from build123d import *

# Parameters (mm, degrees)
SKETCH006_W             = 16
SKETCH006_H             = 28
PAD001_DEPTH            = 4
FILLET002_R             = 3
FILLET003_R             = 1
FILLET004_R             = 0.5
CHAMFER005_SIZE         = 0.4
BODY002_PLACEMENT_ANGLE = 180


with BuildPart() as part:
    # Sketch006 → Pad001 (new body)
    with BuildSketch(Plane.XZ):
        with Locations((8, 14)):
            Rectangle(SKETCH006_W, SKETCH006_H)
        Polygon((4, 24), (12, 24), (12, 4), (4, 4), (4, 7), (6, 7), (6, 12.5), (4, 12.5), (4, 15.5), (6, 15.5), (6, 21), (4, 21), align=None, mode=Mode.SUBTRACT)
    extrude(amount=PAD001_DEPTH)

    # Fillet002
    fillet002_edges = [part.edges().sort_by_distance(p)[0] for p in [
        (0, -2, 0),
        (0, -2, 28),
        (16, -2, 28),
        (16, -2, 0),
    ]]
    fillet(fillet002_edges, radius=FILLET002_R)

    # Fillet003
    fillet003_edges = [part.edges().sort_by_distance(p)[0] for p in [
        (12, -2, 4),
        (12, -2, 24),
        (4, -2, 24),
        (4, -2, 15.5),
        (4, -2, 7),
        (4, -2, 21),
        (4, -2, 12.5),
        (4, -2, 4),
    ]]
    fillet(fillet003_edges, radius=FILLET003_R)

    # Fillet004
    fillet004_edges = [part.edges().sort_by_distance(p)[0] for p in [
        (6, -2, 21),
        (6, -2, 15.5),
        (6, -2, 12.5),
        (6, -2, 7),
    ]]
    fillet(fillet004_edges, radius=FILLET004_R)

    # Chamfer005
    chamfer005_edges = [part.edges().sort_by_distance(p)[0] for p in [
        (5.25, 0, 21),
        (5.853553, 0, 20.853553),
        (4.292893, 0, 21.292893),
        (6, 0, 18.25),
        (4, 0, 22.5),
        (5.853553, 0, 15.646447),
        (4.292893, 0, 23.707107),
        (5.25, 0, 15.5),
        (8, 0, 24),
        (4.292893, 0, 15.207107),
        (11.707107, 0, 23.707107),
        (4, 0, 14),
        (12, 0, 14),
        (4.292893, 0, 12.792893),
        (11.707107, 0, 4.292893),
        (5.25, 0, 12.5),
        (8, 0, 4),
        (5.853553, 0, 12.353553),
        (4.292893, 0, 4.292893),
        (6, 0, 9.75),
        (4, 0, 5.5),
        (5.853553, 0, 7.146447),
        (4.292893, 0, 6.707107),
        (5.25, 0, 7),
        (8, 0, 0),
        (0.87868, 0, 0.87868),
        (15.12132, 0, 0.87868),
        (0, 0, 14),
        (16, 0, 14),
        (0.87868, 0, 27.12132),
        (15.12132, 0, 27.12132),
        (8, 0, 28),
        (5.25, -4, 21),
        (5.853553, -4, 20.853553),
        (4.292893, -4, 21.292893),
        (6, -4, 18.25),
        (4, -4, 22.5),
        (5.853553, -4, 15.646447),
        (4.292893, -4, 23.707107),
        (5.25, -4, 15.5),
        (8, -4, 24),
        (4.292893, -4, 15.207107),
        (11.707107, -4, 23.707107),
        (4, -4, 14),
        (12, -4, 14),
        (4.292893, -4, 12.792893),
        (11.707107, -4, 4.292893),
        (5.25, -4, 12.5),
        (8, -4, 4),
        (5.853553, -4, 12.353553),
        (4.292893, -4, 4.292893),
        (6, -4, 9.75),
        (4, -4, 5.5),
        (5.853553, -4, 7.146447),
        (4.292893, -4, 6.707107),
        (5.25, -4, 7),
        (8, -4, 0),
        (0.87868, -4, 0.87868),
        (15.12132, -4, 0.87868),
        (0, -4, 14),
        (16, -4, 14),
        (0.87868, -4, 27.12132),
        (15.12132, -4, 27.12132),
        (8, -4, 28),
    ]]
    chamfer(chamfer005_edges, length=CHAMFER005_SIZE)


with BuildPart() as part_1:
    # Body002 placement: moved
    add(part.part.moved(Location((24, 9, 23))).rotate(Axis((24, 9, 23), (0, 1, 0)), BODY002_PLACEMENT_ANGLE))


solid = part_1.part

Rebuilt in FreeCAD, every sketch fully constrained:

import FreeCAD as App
import Part
import Sketcher
Q = App.Units.Quantity


def edges_at(feature, points):
    """Names of the edges that pass closest to the given points."""
    edges = feature.Shape.Edges
    near = lambda p: min(range(len(edges)), key=lambda i: edges[i].distToShape(Part.Vertex(*p))[0])
    return sorted({f"Edge{near(p) + 1}" for p in points})

doc = App.newDocument("Part")
body = doc.addObject("PartDesign::Body", "Body")

# Sketch on XZ plane
sketch1 = body.newObject("Sketcher::SketchObject", "Sketch")
sketch1.AttachmentSupport = (doc.getObject("XZ_Plane"), [""])
sketch1.MapMode = "FlatFace"
sketch1.addGeometry([
    Part.LineSegment(App.Vector(0, 28, 0), App.Vector(0, 0, 0)),  # 0
    Part.LineSegment(App.Vector(0, 0, 0), App.Vector(16, 0, 0)),  # 1
    Part.LineSegment(App.Vector(16, 0, 0), App.Vector(16, 28, 0)),  # 2
    Part.LineSegment(App.Vector(16, 28, 0), App.Vector(0, 28, 0)),  # 3
    Part.LineSegment(App.Vector(4, 21, 0), App.Vector(4, 24, 0)),  # 4
    Part.LineSegment(App.Vector(4, 24, 0), App.Vector(12, 24, 0)),  # 5
    Part.LineSegment(App.Vector(12, 24, 0), App.Vector(12, 4, 0)),  # 6
    Part.LineSegment(App.Vector(12, 4, 0), App.Vector(4, 4, 0)),  # 7
    Part.LineSegment(App.Vector(4, 4, 0), App.Vector(4, 7, 0)),  # 8
    Part.LineSegment(App.Vector(4, 7, 0), App.Vector(6, 7, 0)),  # 9
    Part.LineSegment(App.Vector(6, 7, 0), App.Vector(6, 12.5, 0)),  # 10
    Part.LineSegment(App.Vector(6, 12.5, 0), App.Vector(4, 12.5, 0)),  # 11
    Part.LineSegment(App.Vector(4, 12.5, 0), App.Vector(4, 15.5, 0)),  # 12
    Part.LineSegment(App.Vector(4, 15.5, 0), App.Vector(6, 15.5, 0)),  # 13
    Part.LineSegment(App.Vector(6, 15.5, 0), App.Vector(6, 21, 0)),  # 14
    Part.LineSegment(App.Vector(6, 21, 0), App.Vector(4, 21, 0)),  # 15
], False)
sketch1.addConstraint([
    Sketcher.Constraint("Coincident", 0, 2, 1, 1),
    Sketcher.Constraint("Coincident", 1, 2, 2, 1),
    Sketcher.Constraint("Coincident", 2, 2, 3, 1),
    Sketcher.Constraint("Coincident", 3, 2, 0, 1),
    Sketcher.Constraint("Coincident", 4, 2, 5, 1),
    Sketcher.Constraint("Coincident", 5, 2, 6, 1),
    Sketcher.Constraint("Coincident", 6, 2, 7, 1),
    Sketcher.Constraint("Coincident", 7, 2, 8, 1),
    Sketcher.Constraint("Coincident", 8, 2, 9, 1),
    Sketcher.Constraint("Coincident", 9, 2, 10, 1),
    Sketcher.Constraint("Coincident", 10, 2, 11, 1),
    Sketcher.Constraint("Coincident", 11, 2, 12, 1),
    Sketcher.Constraint("Coincident", 12, 2, 13, 1),
    Sketcher.Constraint("Coincident", 13, 2, 14, 1),
    Sketcher.Constraint("Coincident", 14, 2, 15, 1),
    Sketcher.Constraint("Coincident", 15, 2, 4, 1),
    Sketcher.Constraint("Vertical", 0),
    Sketcher.Constraint("Horizontal", 1),
    Sketcher.Constraint("Vertical", 2),
    Sketcher.Constraint("Horizontal", 3),
    Sketcher.Constraint("Vertical", 4),
    Sketcher.Constraint("Horizontal", 5),
    Sketcher.Constraint("Vertical", 6),
    Sketcher.Constraint("Horizontal", 7),
    Sketcher.Constraint("Vertical", 8),
    Sketcher.Constraint("Horizontal", 9),
    Sketcher.Constraint("Vertical", 10),
    Sketcher.Constraint("Horizontal", 11),
    Sketcher.Constraint("Vertical", 12),
    Sketcher.Constraint("Horizontal", 13),
    Sketcher.Constraint("Vertical", 14),
    Sketcher.Constraint("Horizontal", 15),
    Sketcher.Constraint("Coincident", 0, 2, -1, 1),
    Sketcher.Constraint("Vertical", 4, 2, 7, 2),
    Sketcher.Constraint("Vertical", 8, 2, 11, 2),
    Sketcher.Constraint("Vertical", 10, 2, 13, 2),
    Sketcher.Constraint("Equal", 4, 8),
    Sketcher.Constraint("Equal", 8, 12),
    Sketcher.Constraint("Equal", 10, 14),
    Sketcher.Constraint("DistanceX", 1, 1, 1, 2, Q("16 mm")),
    Sketcher.Constraint("DistanceX", 5, 1, 5, 2, Q("8 mm")),
    Sketcher.Constraint("DistanceX", 9, 1, 9, 2, Q("2 mm")),
    Sketcher.Constraint("DistanceY", 0, 2, 0, 1, Q("28 mm")),
    Sketcher.Constraint("DistanceY", 4, 1, 4, 2, Q("3 mm")),
    Sketcher.Constraint("DistanceY", 6, 2, 6, 1, Q("20 mm")),
    Sketcher.Constraint("DistanceX", -1, 1, 4, 2, Q("4 mm")),
    Sketcher.Constraint("DistanceY", -1, 1, 4, 2, Q("24 mm")),
])
pad1 = body.newObject("PartDesign::Pad", "Pad")
pad1.Profile = sketch1
pad1.Length = 4
doc.recompute()

fillet = body.newObject("PartDesign::Fillet", "Fillet")
fillet.Base = (pad1, edges_at(pad1, [
    (0, -2, 0),
    (0, -2, 28),
    (16, -2, 28),
    (16, -2, 0),
]))
fillet.Radius = 3
doc.recompute()

fillet2 = body.newObject("PartDesign::Fillet", "Fillet001")
fillet2.Base = (fillet, edges_at(fillet, [
    (12, -2, 4),
    (12, -2, 24),
    (4, -2, 24),
    (4, -2, 15.5),
    (4, -2, 7),
    (4, -2, 21),
    (4, -2, 12.5),
    (4, -2, 4),
]))
fillet2.Radius = 1
doc.recompute()

fillet3 = body.newObject("PartDesign::Fillet", "Fillet002")
fillet3.Base = (fillet2, edges_at(fillet2, [
    (6, -2, 21),
    (6, -2, 15.5),
    (6, -2, 12.5),
    (6, -2, 7),
]))
fillet3.Radius = 0.5
doc.recompute()

chamfer = body.newObject("PartDesign::Chamfer", "Chamfer")
chamfer.Base = (fillet3, edges_at(fillet3, [
    (5.25, 0, 21),
    (5.854, 0, 20.854),
    (4.293, 0, 21.293),
    (6, 0, 18.25),
    (4, 0, 22.5),
    (5.854, 0, 15.646),
    (4.293, 0, 23.707),
    (5.25, 0, 15.5),
    (8, 0, 24),
    (4.293, 0, 15.207),
    (11.707, 0, 23.707),
    (4, 0, 14),
    (12, 0, 14),
    (4.293, 0, 12.793),
    (11.707, 0, 4.293),
    (5.25, 0, 12.5),
    (8, 0, 4),
    (5.854, 0, 12.354),
    (4.293, 0, 4.293),
    (6, 0, 9.75),
    (4, 0, 5.5),
    (5.854, 0, 7.146),
    (4.293, 0, 6.707),
    (5.25, 0, 7),
    (8, 0, 0),
    (0.879, 0, 0.879),
    (15.121, 0, 0.879),
    (0, 0, 14),
    (16, 0, 14),
    (0.879, 0, 27.121),
    (15.121, 0, 27.121),
    (8, 0, 28),
    (5.25, -4, 21),
    (5.854, -4, 20.854),
    (4.293, -4, 21.293),
    (6, -4, 18.25),
    (4, -4, 22.5),
    (5.854, -4, 15.646),
    (4.293, -4, 23.707),
    (5.25, -4, 15.5),
    (8, -4, 24),
    (4.293, -4, 15.207),
    (11.707, -4, 23.707),
    (4, -4, 14),
    (12, -4, 14),
    (4.293, -4, 12.793),
    (11.707, -4, 4.293),
    (5.25, -4, 12.5),
    (8, -4, 4),
    (5.854, -4, 12.354),
    (4.293, -4, 4.293),
    (6, -4, 9.75),
    (4, -4, 5.5),
    (5.854, -4, 7.146),
    (4.293, -4, 6.707),
    (5.25, -4, 7),
    (8, -4, 0),
    (0.879, -4, 0.879),
    (15.121, -4, 0.879),
    (0, -4, 14),
    (16, -4, 14),
    (0.879, -4, 27.121),
    (15.121, -4, 27.121),
    (8, -4, 28),
]))
chamfer.Size = 0.4
body2 = doc.addObject("PartDesign::Body", "Body001")
doc.recompute()

body.Placement = App.Placement(App.Vector(24, 9, 23), App.Rotation(App.Vector(0, 1, 0), 180))
boolean = body2.newObject("PartDesign::Boolean", "Boolean")
boolean.Type = "Fuse"
boolean.addObjects([body])

doc.recompute()
